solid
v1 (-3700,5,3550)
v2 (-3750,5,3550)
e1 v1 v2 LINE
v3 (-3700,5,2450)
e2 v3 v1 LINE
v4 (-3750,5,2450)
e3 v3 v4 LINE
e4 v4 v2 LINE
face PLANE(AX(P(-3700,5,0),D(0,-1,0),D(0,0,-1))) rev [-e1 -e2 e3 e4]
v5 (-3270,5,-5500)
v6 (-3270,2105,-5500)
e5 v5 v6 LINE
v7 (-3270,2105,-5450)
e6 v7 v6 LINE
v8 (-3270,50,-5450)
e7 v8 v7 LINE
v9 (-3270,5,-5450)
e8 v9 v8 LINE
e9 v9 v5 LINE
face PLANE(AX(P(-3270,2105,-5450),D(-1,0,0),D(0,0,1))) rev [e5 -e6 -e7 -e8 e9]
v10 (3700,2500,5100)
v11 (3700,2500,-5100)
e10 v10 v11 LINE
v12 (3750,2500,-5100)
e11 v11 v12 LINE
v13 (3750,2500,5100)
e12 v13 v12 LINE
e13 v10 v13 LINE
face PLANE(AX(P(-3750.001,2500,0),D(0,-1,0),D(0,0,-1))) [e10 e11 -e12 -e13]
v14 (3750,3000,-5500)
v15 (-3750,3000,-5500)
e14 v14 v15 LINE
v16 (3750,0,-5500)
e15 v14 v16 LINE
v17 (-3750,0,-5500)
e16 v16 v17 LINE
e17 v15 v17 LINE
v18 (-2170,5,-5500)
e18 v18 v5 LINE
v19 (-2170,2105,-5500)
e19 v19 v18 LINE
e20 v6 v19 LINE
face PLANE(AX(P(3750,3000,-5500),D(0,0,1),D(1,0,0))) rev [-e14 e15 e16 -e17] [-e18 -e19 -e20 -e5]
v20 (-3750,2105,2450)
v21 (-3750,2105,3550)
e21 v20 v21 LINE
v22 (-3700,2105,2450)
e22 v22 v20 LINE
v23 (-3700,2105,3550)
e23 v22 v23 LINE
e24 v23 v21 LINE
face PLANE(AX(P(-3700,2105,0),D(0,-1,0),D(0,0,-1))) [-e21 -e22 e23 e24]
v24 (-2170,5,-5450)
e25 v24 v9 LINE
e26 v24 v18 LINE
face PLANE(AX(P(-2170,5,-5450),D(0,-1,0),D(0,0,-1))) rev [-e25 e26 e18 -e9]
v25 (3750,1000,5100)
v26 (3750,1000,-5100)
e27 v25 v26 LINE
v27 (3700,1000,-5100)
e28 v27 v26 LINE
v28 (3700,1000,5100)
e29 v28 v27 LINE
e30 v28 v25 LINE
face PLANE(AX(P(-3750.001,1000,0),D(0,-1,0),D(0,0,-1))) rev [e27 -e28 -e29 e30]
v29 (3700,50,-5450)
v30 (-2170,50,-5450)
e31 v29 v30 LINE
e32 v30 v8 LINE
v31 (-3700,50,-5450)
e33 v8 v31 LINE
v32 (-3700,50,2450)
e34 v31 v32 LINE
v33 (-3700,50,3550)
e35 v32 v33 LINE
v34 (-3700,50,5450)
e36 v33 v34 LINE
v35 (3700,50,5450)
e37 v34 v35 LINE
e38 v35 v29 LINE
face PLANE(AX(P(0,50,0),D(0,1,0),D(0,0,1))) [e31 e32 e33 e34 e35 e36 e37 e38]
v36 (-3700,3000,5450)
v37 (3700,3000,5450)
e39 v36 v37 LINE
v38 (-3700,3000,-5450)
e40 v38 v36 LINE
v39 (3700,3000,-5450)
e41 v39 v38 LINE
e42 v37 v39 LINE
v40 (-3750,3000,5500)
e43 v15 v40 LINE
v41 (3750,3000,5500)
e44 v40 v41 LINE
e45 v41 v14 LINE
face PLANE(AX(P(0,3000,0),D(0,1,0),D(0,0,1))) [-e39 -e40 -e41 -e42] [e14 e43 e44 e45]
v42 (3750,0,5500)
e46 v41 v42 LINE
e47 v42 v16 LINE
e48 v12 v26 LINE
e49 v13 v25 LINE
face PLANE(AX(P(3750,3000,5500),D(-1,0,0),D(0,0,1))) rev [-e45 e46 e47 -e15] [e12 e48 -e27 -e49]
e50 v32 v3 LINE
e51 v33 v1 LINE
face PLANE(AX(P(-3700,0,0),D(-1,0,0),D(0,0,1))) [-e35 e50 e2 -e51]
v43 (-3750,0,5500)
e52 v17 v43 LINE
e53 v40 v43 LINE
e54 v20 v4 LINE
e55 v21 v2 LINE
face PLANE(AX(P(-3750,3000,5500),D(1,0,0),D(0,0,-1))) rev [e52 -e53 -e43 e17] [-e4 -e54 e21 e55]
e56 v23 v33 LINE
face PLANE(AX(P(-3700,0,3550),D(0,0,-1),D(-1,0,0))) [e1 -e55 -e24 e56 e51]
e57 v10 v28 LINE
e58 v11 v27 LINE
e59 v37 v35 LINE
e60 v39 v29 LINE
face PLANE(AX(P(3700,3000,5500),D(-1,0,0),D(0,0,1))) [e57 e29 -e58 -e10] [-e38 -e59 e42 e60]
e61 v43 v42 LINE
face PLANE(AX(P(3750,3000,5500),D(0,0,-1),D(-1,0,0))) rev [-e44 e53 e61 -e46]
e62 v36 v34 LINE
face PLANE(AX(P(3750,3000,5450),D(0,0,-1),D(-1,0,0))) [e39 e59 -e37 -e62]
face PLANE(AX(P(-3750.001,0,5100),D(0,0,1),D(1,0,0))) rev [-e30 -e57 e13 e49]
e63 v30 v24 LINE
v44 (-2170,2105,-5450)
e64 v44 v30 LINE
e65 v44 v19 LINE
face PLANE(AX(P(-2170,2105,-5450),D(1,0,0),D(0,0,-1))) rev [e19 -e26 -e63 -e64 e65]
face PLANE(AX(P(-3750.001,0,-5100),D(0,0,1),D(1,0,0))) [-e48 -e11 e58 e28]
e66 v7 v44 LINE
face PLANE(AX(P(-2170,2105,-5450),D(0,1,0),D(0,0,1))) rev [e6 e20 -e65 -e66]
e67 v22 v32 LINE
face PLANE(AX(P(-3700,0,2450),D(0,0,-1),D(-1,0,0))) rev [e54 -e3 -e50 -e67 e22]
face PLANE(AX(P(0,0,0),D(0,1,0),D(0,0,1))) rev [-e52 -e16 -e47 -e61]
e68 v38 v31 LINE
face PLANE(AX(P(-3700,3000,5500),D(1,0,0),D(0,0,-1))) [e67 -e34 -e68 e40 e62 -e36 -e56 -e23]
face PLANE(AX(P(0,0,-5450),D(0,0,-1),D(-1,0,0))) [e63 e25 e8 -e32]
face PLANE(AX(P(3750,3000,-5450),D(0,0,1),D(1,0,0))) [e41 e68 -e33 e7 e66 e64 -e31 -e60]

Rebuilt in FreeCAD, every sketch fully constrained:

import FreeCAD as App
import Part
import Sketcher

V = App.Vector


def faces_at(feature, points):
    """Names of the faces that lie closest to the given points."""
    faces = feature.Shape.Faces
    near = lambda p: min(range(len(faces)), key=lambda i: faces[i].distToShape(Part.Vertex(*p))[0])
    return sorted({f"Face{near(p) + 1}" for p in points})

doc = App.newDocument("Part")
body = doc.addObject("PartDesign::Body", "Body")

sketch1 = body.newObject("Sketcher::SketchObject", "Sketch")
sketch1.AttachmentSupport = (doc.getObject("XZ_Plane"), [""])
sketch1.MapMode = "FlatFace"
sketch1.addGeometry([
    Part.LineSegment(V(-3750, -5500, 0), V(-3750, 5500, 0)),
    Part.LineSegment(V(-3750, 5500, 0), V(3750, 5500, 0)),
    Part.LineSegment(V(3750, 5500, 0), V(3750, -5500, 0)),
    Part.LineSegment(V(3750, -5500, 0), V(-3750, -5500, 0)),
], False)
sketch1.addConstraint([
    Sketcher.Constraint("Coincident", 0, 2, 1, 1),
    Sketcher.Constraint("Coincident", 1, 2, 2, 1),
    Sketcher.Constraint("Coincident", 2, 2, 3, 1),
    Sketcher.Constraint("Coincident", 3, 2, 0, 1),
    Sketcher.Constraint("Vertical", 0),
    Sketcher.Constraint("Horizontal", 1),
    Sketcher.Constraint("Vertical", 2),
    Sketcher.Constraint("Horizontal", 3),
    Sketcher.Constraint("Symmetric", 0, 2, 2, 2, -1, 1),
    Sketcher.Constraint("DistanceX", 1, 1, 1, 2, 7500.0),
    Sketcher.Constraint("DistanceY", 0, 1, 0, 2, 11000.0),
])
pad1 = body.newObject("PartDesign::Pad", "Pad")
pad1.Profile = sketch1
pad1.Length = 3000
pad1.Reversed = True
doc.recompute()

thickness = body.newObject("PartDesign::Thickness", "Thickness")
thickness.Base = (pad1, faces_at(pad1, [(0, 3000, 0)]))
thickness.Value = 50
thickness.Reversed = True
thickness.Join = "Intersection"

sketch2 = body.newObject("Sketcher::SketchObject", "Sketch001")
sketch2.AttachmentSupport = (doc.getObject("YZ_Plane"), [""])
sketch2.MapMode = "FlatFace"
sketch2.AttachmentOffset = App.Placement(V(0, 0, 3750), App.Rotation())
sketch2.addGeometry([
    Part.LineSegment(V(2500, 5100, 0), V(1000, 5100, 0)),
    Part.LineSegment(V(1000, 5100, 0), V(1000, 0, 0)),
    Part.LineSegment(V(1000, 0, 0), V(2500, 0, 0)),
    Part.LineSegment(V(2500, 0, 0), V(2500, 5100, 0)),
], False)
sketch2.addConstraint([
    Sketcher.Constraint("Coincident", 0, 2, 1, 1),
    Sketcher.Constraint("Coincident", 1, 2, 2, 1),
    Sketcher.Constraint("Coincident", 2, 2, 3, 1),
    Sketcher.Constraint("Coincident", 3, 2, 0, 1),
    Sketcher.Constraint("Horizontal", 0),
    Sketcher.Constraint("Vertical", 1),
    Sketcher.Constraint("Horizontal", 2),
    Sketcher.Constraint("Vertical", 3),
    Sketcher.Constraint("PointOnObject", 1, 2, -1),
    Sketcher.Constraint("DistanceX", 0, 2, 0, 1, 1500.0),
    Sketcher.Constraint("DistanceY", 1, 2, 1, 1, 5100.0),
    Sketcher.Constraint("DistanceX", -1, 1, 0, 2, 1000.0),
])
pocket1 = body.newObject("PartDesign::Pocket", "Pocket")
pocket1.Profile = sketch2
pocket1.Type = "UpToFirst"

sketch3 = body.newObject("Sketcher::SketchObject", "Sketch002")
sketch3.AttachmentSupport = (doc.getObject("YZ_Plane"), [""])
sketch3.MapMode = "FlatFace"
sketch3.AttachmentOffset = App.Placement(V(0, 0, 3750), App.Rotation())
sketch3.addGeometry([
    Part.LineSegment(V(2500, 0, 0), V(1000, 0, 0)),
    Part.LineSegment(V(1000, 0, 0), V(1000, -5100, 0)),
    Part.LineSegment(V(1000, -5100, 0), V(2500, -5100, 0)),
    Part.LineSegment(V(2500, -5100, 0), V(2500, 0, 0)),
], False)
sketch3.addConstraint([
    Sketcher.Constraint("Coincident", 0, 2, 1, 1),
    Sketcher.Constraint("Coincident", 1, 2, 2, 1),
    Sketcher.Constraint("Coincident", 2, 2, 3, 1),
    Sketcher.Constraint("Coincident", 3, 2, 0, 1),
    Sketcher.Constraint("Horizontal", 0),
    Sketcher.Constraint("Vertical", 1),
    Sketcher.Constraint("Horizontal", 2),
    Sketcher.Constraint("Vertical", 3),
    Sketcher.Constraint("PointOnObject", 0, 2, -1),
    Sketcher.Constraint("DistanceX", 0, 2, 0, 1, 1500.0),
    Sketcher.Constraint("DistanceY", 1, 2, 1, 1, 5100.0),
    Sketcher.Constraint("DistanceX", -1, 1, 0, 2, 1000.0),
])
pocket2 = body.newObject("PartDesign::Pocket", "Pocket001")
pocket2.Profile = sketch3
pocket2.Type = "UpToFirst"

sketch4 = body.newObject("Sketcher::SketchObject", "Sketch003")
sketch4.AttachmentSupport = (doc.getObject("XY_Plane"), [""])
sketch4.MapMode = "FlatFace"
sketch4.AttachmentOffset = App.Placement(V(0, 0, -5500), App.Rotation())
sketch4.addGeometry([
    Part.LineSegment(V(-2170, 2105, 0), V(-2170, 5, 0)),
    Part.LineSegment(V(-2170, 5, 0), V(-3270, 5, 0)),
    Part.LineSegment(V(-3270, 5, 0), V(-3270, 2105, 0)),
    Part.LineSegment(V(-3270, 2105, 0), V(-2170, 2105, 0)),
], False)
sketch4.addConstraint([
    Sketcher.Constraint("Coincident", 0, 2, 1, 1),
    Sketcher.Constraint("Coincident", 1, 2, 2, 1),
    Sketcher.Constraint("Coincident", 2, 2, 3, 1),
    Sketcher.Constraint("Coincident", 3, 2, 0, 1),
    Sketcher.Constraint("Vertical", 0),
    Sketcher.Constraint("Horizontal", 1),
    Sketcher.Constraint("Vertical", 2),
    Sketcher.Constraint("Horizontal", 3),
    Sketcher.Constraint("DistanceX", 1, 2, 1, 1, 1100.0),
    Sketcher.Constraint("DistanceY", 0, 2, 0, 1, 2100.0),
    Sketcher.Constraint("DistanceX", 0, 2, -1, 1, 2170.0),
    Sketcher.Constraint("DistanceY", -1, 1, 0, 2, 5.0),
])
pocket3 = body.newObject("PartDesign::Pocket", "Pocket002")
pocket3.Profile = sketch4
pocket3.Length = 50
pocket3.Reversed = True

sketch5 = body.newObject("Sketcher::SketchObject", "Sketch004")
sketch5.AttachmentSupport = (doc.getObject("YZ_Plane"), [""])
sketch5.MapMode = "FlatFace"
sketch5.AttachmentOffset = App.Placement(V(0, 0, -3750), App.Rotation())
sketch5.addGeometry([
    Part.LineSegment(V(2105, 2450, 0), V(5, 2450, 0)),
    Part.LineSegment(V(5, 2450, 0), V(5, 3550, 0)),
    Part.LineSegment(V(5, 3550, 0), V(2105, 3550, 0)),
    Part.LineSegment(V(2105, 3550, 0), V(2105, 2450, 0)),
], False)
sketch5.addConstraint([
    Sketcher.Constraint("Coincident", 0, 2, 1, 1),
    Sketcher.Constraint("Coincident", 1, 2, 2, 1),
    Sketcher.Constraint("Coincident", 2, 2, 3, 1),
    Sketcher.Constraint("Coincident", 3, 2, 0, 1),
    Sketcher.Constraint("Horizontal", 0),
    Sketcher.Constraint("Vertical", 1),
    Sketcher.Constraint("Horizontal", 2),
    Sketcher.Constraint("Vertical", 3),
    Sketcher.Constraint("DistanceX", 0, 2, 0, 1, 2100.0),
    Sketcher.Constraint("DistanceY", 1, 1, 1, 2, 1100.0),
    Sketcher.Constraint("DistanceX", -1, 1, 0, 2, 5.0),
    Sketcher.Constraint("DistanceY", -1, 1, 0, 2, 2450.0),
])
pocket4 = body.newObject("PartDesign::Pocket", "Pocket003")
pocket4.Profile = sketch5
pocket4.Length = 50
pocket4.Reversed = True

doc.recompute()
